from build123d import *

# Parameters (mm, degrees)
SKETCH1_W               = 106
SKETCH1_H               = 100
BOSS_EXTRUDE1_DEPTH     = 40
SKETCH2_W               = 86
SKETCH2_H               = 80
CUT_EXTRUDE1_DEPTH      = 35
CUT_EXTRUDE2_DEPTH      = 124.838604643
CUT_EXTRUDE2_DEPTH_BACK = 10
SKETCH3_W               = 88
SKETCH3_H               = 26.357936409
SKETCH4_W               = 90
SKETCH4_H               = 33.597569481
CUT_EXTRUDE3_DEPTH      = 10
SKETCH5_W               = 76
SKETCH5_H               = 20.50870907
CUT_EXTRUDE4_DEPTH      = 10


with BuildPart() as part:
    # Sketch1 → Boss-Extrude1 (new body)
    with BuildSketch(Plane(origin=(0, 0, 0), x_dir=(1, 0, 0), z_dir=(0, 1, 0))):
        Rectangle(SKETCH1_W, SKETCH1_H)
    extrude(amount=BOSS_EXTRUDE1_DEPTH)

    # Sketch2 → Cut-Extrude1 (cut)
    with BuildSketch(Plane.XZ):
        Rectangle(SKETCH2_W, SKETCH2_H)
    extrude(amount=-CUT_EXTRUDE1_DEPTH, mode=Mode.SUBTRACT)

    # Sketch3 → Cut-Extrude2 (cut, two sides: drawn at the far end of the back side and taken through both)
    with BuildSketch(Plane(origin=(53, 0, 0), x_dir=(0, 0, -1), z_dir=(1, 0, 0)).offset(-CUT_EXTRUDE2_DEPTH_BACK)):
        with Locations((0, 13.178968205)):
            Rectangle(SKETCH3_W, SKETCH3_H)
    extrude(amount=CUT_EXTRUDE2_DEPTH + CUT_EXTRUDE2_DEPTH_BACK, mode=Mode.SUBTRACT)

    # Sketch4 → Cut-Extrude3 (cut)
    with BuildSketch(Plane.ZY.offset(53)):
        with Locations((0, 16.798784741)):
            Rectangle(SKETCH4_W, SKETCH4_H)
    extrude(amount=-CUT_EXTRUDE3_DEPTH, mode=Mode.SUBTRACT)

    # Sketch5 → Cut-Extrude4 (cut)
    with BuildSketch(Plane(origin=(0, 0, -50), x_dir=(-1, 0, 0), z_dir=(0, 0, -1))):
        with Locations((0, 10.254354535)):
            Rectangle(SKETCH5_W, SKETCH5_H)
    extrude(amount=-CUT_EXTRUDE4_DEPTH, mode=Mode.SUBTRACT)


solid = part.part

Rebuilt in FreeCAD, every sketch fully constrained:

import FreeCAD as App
import Part
import Sketcher


def add_polygon(sketch, points):
    """Adds a closed chain of lines whose ends are joined by coincident constraints."""
    first, n = sketch.GeometryCount, len(points)
    for a, b in zip(points, points[1:] + points[:1]):
        sketch.addGeometry(Part.LineSegment(App.Vector(*a, 0), App.Vector(*b, 0)), False)
    for i in range(n):
        sketch.addConstraint(Sketcher.Constraint("Coincident", first + i, 2, first + (i + 1) % n, 1))

doc = App.newDocument("Part")
body = doc.addObject("PartDesign::Body", "Body")

# Sketch on XZ plane
sketch1 = body.newObject("Sketcher::SketchObject", "Sketch")
sketch1.AttachmentSupport = (doc.getObject("XZ_Plane"), [""])
sketch1.MapMode = "FlatFace"
add_polygon(sketch1, [(-53, -50), (-53, 50), (53, 50), (53, -50)])  # lines 0-3
sketch1.addConstraint([
    Sketcher.Constraint("Vertical", 0),
    Sketcher.Constraint("Horizontal", 1),
    Sketcher.Constraint("Vertical", 2),
    Sketcher.Constraint("Horizontal", 3),
    Sketcher.Constraint("Symmetric", 0, 2, 2, 2, -1, 1),
    Sketcher.Constraint("DistanceX", 1, 1, 1, 2, 106.0),
    Sketcher.Constraint("DistanceY", 0, 1, 0, 2, 100.0),
])
pad1 = body.newObject("PartDesign::Pad", "Pad")
pad1.Profile = sketch1
pad1.Length = 40
pad1.Reversed = True

# Sketch on XZ plane
sketch2 = body.newObject("Sketcher::SketchObject", "Sketch001")
sketch2.AttachmentSupport = (doc.getObject("XZ_Plane"), [""])
sketch2.MapMode = "FlatFace"
add_polygon(sketch2, [(-43, 40), (-43, -40), (43, -40), (43, 40)])  # lines 0-3
sketch2.addConstraint([
    Sketcher.Constraint("Vertical", 0),
    Sketcher.Constraint("Horizontal", 1),
    Sketcher.Constraint("Vertical", 2),
    Sketcher.Constraint("Horizontal", 3),
    Sketcher.Constraint("Symmetric", 0, 2, 2, 2, -1, 1),
    Sketcher.Constraint("DistanceX", 1, 1, 1, 2, 86.0),
    Sketcher.Constraint("DistanceY", 0, 2, 0, 1, 80.0),
])
pocket1 = body.newObject("PartDesign::Pocket", "Pocket")
pocket1.Profile = sketch2
pocket1.Length = 35

# Sketch on YZ plane
sketch3 = body.newObject("Sketcher::SketchObject", "Sketch002")
sketch3.AttachmentSupport = (doc.getObject("YZ_Plane"), [""])
sketch3.MapMode = "FlatFace"
sketch3.AttachmentOffset = App.Placement(App.Vector(0, 0, 53), App.Rotation())
add_polygon(sketch3, [(26, 44), (0, 44), (0, -44), (26, -44)])  # lines 0-3
sketch3.addConstraint([
    Sketcher.Constraint("Horizontal", 0),
    Sketcher.Constraint("Vertical", 1),
    Sketcher.Constraint("Horizontal", 2),
    Sketcher.Constraint("Vertical", 3),
    Sketcher.Constraint("Symmetric", 0, 2, 1, 2, -1, 1),
    Sketcher.Constraint("DistanceY", 1, 2, 1, 1, 88.0),
    Sketcher.Constraint("DistanceX", 0, 2, 0, 1, 26.357936),
])
pocket2 = body.newObject("PartDesign::Pocket", "Pocket001")
pocket2.Profile = sketch3
pocket2.Type = "TwoLengths"
pocket2.Length = 124.838605
pocket2.Length2 = 10
pocket2.Reversed = True

# Sketch on YZ plane
sketch4 = body.newObject("Sketcher::SketchObject", "Sketch003")
sketch4.AttachmentSupport = (doc.getObject("YZ_Plane"), [""])
sketch4.MapMode = "FlatFace"
sketch4.AttachmentOffset = App.Placement(App.Vector(0, 0, -53), App.Rotation())
add_polygon(sketch4, [(34, -45), (0, -45), (0, 45), (34, 45)])  # lines 0-3
sketch4.addConstraint([
    Sketcher.Constraint("Horizontal", 0),
    Sketcher.Constraint("Vertical", 1),
    Sketcher.Constraint("Horizontal", 2),
    Sketcher.Constraint("Vertical", 3),
    Sketcher.Constraint("Symmetric", 0, 2, 1, 2, -1, 1),
    Sketcher.Constraint("DistanceY", 1, 1, 1, 2, 90.0),
    Sketcher.Constraint("DistanceX", 0, 2, 0, 1, 33.597569),
])
pocket3 = body.newObject("PartDesign::Pocket", "Pocket002")
pocket3.Profile = sketch4
pocket3.Length = 10
pocket3.Reversed = True

# Sketch on XY plane
sketch5 = body.newObject("Sketcher::SketchObject", "Sketch004")
sketch5.AttachmentSupport = (doc.getObject("XY_Plane"), [""])
sketch5.MapMode = "FlatFace"
sketch5.AttachmentOffset = App.Placement(App.Vector(0, 0, -50), App.Rotation())
add_polygon(sketch5, [(38, 21), (38, 0), (-38, 0), (-38, 21)])  # lines 0-3
sketch5.addConstraint([
    Sketcher.Constraint("Vertical", 0),
    Sketcher.Constraint("Horizontal", 1),
    Sketcher.Constraint("Vertical", 2),
    Sketcher.Constraint("Horizontal", 3),
    Sketcher.Constraint("Symmetric", 0, 2, 1, 2, -1, 1),
    Sketcher.Constraint("DistanceX", 1, 2, 1, 1, 76.0),
    Sketcher.Constraint("DistanceY", 0, 2, 0, 1, 20.508709),
])
pocket4 = body.newObject("PartDesign::Pocket", "Pocket003")
pocket4.Profile = sketch5
pocket4.Length = 10
pocket4.Reversed = True

doc.recompute()
